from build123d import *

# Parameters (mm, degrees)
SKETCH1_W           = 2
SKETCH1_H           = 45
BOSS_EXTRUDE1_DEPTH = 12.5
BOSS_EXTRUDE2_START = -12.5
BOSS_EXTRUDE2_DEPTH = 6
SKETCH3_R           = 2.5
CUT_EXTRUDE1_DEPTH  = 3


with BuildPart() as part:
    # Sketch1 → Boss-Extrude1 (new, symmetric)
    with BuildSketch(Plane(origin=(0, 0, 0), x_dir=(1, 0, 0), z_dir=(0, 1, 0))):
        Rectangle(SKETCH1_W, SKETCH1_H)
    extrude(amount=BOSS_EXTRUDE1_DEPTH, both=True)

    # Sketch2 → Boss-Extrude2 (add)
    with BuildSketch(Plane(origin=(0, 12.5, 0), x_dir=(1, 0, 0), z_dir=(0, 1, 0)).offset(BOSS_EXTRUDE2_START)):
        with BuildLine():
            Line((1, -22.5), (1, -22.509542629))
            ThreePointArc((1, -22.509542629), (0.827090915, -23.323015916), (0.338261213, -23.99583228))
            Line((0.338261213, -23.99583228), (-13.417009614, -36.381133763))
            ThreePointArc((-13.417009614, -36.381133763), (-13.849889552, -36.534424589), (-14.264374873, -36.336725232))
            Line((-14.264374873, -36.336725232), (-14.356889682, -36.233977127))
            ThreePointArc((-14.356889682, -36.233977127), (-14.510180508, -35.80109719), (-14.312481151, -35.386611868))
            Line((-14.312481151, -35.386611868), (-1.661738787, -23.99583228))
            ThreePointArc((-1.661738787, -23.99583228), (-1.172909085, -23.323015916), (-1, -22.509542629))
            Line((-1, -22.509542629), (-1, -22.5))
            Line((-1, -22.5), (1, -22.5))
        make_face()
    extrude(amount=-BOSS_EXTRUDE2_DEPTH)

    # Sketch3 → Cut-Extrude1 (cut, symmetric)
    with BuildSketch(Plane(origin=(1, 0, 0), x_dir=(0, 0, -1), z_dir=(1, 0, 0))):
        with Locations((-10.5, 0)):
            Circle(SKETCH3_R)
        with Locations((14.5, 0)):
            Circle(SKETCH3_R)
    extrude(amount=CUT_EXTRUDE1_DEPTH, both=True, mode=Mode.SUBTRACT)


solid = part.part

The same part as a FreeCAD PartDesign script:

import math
import FreeCAD as App
import Part
import Sketcher
Q = App.Units.Quantity


def add_polygon(sketch, points):
    """Adds a closed chain of lines whose ends are joined by coincident constraints."""
    first, n = sketch.GeometryCount, len(points)
    for a, b in zip(points, points[1:] + points[:1]):
        sketch.addGeometry(Part.LineSegment(App.Vector(*a, 0), App.Vector(*b, 0)), False)
    for i in range(n):
        sketch.addConstraint(Sketcher.Constraint("Coincident", first + i, 2, first + (i + 1) % n, 1))

doc = App.newDocument("Part")
params = doc.addObject("Spreadsheet::Sheet", "Params")
for row, (alias, value) in enumerate([
    ("sketch1_width", "2 mm"),
    ("sketch1_height", "45 mm"),
    ("pad1_length", "25 mm"),
    ("sketch2_radius", "2 mm"),
    ("sketch2_radius2", "0.6 mm"),
    ("pad2_length", "6 mm"),
    ("sketch3_diameter", "5 mm"),
    ("pocket1_length", "6 mm"),
], start=1):
    params.set(f"A{row}", alias)
    params.set(f"B{row}", "=" + value)
    params.setAlias(f"B{row}", alias)

body = doc.addObject("PartDesign::Body", "Body")

sketch1 = body.newObject("Sketcher::SketchObject", "Sketch")
sketch1.AttachmentSupport = (doc.getObject("XZ_Plane"), [""])
sketch1.MapMode = "FlatFace"
add_polygon(sketch1, [(-1, -22.5), (-1, 22.5), (1, 22.5), (1, -22.5)])
sketch1.addConstraint([
    Sketcher.Constraint("Vertical", 0),
    Sketcher.Constraint("Horizontal", 1),
    Sketcher.Constraint("Vertical", 2),
    Sketcher.Constraint("Horizontal", 3),
    Sketcher.Constraint("Symmetric", 0, 2, 2, 2, -1, 1),
    Sketcher.Constraint("DistanceX", 1, 1, 1, 2, Q("2 mm")),
    Sketcher.Constraint("DistanceY", 0, 1, 0, 2, Q("45 mm")),
])
sketch1.setExpression("Constraints[9]", "Params.sketch1_width")
sketch1.setExpression("Constraints[10]", "Params.sketch1_height")
pad1 = body.newObject("PartDesign::Pad", "Pad")
pad1.Profile = sketch1
pad1.setExpression("Length", "Params.pad1_length")
pad1.Midplane = True

sketch2 = body.newObject("Sketcher::SketchObject", "Sketch001")
sketch2.AttachmentSupport = (doc.getObject("XZ_Plane"), [""])
sketch2.MapMode = "FlatFace"
sketch2.addGeometry([
    Part.LineSegment(App.Vector(1, 22.51, 0), App.Vector(1, 22.5, 0)),
    Part.LineSegment(App.Vector(1, 22.5, 0), App.Vector(-1, 22.5, 0)),
    Part.LineSegment(App.Vector(-1, 22.5, 0), App.Vector(-1, 22.51, 0)),
    Part.ArcOfCircle(Part.Circle(App.Vector(-3, 22.51, 0), App.Vector(0, 0, 1), 2), math.radians(0), math.radians(48)),
    Part.LineSegment(App.Vector(-1.662, 23.996, 0), App.Vector(-14.312, 35.387, 0)),
    Part.ArcOfCircle(Part.Circle(App.Vector(-13.911, 35.832, 0), App.Vector(0, 0, 1), 0.6), math.radians(138), math.radians(228)),
    Part.LineSegment(App.Vector(-14.357, 36.234, 0), App.Vector(-14.264, 36.337, 0)),
    Part.ArcOfCircle(Part.Circle(App.Vector(-13.818, 35.935, 0), App.Vector(0, 0, 1), 0.6), math.radians(48), math.radians(138)),
    Part.LineSegment(App.Vector(-13.417, 36.381, 0), App.Vector(0.338, 23.996, 0)),
    Part.ArcOfCircle(Part.Circle(App.Vector(-1, 22.51, 0), App.Vector(0, 0, 1), 2), math.radians(0), math.radians(48)),
], False)
sketch2.addConstraint([
    Sketcher.Constraint("Coincident", 0, 2, 1, 1),
    Sketcher.Constraint("Coincident", 1, 2, 2, 1),
    Sketcher.Constraint("Tangent", 2, 2, 3, 1),
    Sketcher.Constraint("Tangent", 3, 2, 4, 1),
    Sketcher.Constraint("Tangent", 4, 2, 5, 2),
    Sketcher.Constraint("Tangent", 5, 1, 6, 1),
    Sketcher.Constraint("Tangent", 6, 2, 7, 2),
    Sketcher.Constraint("Tangent", 7, 1, 8, 1),
    Sketcher.Constraint("Tangent", 8, 2, 9, 2),
    Sketcher.Constraint("Tangent", 9, 1, 0, 1),
    Sketcher.Constraint("Vertical", 0),
    Sketcher.Constraint("Horizontal", 1),
    Sketcher.Constraint("Vertical", 2),
    Sketcher.Constraint("Coincident", 2, 2, 9, 3),
    Sketcher.Constraint("Equal", 5, 7),
    Sketcher.Constraint("Equal", 3, 9),
    Sketcher.Constraint("Perpendicular", 4, 6),
    Sketcher.Constraint("Perpendicular", 6, 8),
    Sketcher.Constraint("Radius", 3, Q("2 mm")),
    Sketcher.Constraint("Radius", 5, Q("0.6 mm")),
    Sketcher.Constraint("Angle", 4, Q("138 deg")),
    Sketcher.Constraint("DistanceX", 3, 3, -1, 1, Q("3 mm")),
    Sketcher.Constraint("DistanceY", -1, 1, 0, 2, Q("22.5 mm")),
    Sketcher.Constraint("DistanceY", -1, 1, 5, 3, Q("35.832499 mm")),
    Sketcher.Constraint("DistanceY", 0, 2, 0, 1, Q("0.009543 mm")),
])
sketch2.setExpression("Constraints[18]", "Params.sketch2_radius")
sketch2.setExpression("Constraints[19]", "Params.sketch2_radius2")
pad2 = body.newObject("PartDesign::Pad", "Pad001")
pad2.Profile = sketch2
pad2.setExpression("Length", "Params.pad2_length")

sketch3 = body.newObject("Sketcher::SketchObject", "Sketch002")
sketch3.AttachmentSupport = (doc.getObject("YZ_Plane"), [""])
sketch3.MapMode = "FlatFace"
sketch3.AttachmentOffset = App.Placement(App.Vector(0, 0, 1), App.Rotation())
sketch3.addGeometry([
    Part.Circle(App.Vector(0, 10.5, 0), App.Vector(0, 0, 1), 2.5),
    Part.Circle(App.Vector(0, -14.5, 0), App.Vector(0, 0, 1), 2.5),
], False)
sketch3.addConstraint([
    Sketcher.Constraint("Equal", 0, 1),
    Sketcher.Constraint("PointOnObject", 0, 3, -2),
    Sketcher.Constraint("PointOnObject", 1, 3, -2),
    Sketcher.Constraint("Diameter", 0, Q("5 mm")),
    Sketcher.Constraint("DistanceY", 1, 3, 0, 3, Q("25 mm")),
    Sketcher.Constraint("DistanceY", -1, 1, 0, 3, Q("10.5 mm")),
])
sketch3.setExpression("Constraints[3]", "Params.sketch3_diameter")
pocket1 = body.newObject("PartDesign::Pocket", "Pocket")
pocket1.Profile = sketch3
pocket1.setExpression("Length", "Params.pocket1_length")
pocket1.Midplane = True

doc.recompute()
